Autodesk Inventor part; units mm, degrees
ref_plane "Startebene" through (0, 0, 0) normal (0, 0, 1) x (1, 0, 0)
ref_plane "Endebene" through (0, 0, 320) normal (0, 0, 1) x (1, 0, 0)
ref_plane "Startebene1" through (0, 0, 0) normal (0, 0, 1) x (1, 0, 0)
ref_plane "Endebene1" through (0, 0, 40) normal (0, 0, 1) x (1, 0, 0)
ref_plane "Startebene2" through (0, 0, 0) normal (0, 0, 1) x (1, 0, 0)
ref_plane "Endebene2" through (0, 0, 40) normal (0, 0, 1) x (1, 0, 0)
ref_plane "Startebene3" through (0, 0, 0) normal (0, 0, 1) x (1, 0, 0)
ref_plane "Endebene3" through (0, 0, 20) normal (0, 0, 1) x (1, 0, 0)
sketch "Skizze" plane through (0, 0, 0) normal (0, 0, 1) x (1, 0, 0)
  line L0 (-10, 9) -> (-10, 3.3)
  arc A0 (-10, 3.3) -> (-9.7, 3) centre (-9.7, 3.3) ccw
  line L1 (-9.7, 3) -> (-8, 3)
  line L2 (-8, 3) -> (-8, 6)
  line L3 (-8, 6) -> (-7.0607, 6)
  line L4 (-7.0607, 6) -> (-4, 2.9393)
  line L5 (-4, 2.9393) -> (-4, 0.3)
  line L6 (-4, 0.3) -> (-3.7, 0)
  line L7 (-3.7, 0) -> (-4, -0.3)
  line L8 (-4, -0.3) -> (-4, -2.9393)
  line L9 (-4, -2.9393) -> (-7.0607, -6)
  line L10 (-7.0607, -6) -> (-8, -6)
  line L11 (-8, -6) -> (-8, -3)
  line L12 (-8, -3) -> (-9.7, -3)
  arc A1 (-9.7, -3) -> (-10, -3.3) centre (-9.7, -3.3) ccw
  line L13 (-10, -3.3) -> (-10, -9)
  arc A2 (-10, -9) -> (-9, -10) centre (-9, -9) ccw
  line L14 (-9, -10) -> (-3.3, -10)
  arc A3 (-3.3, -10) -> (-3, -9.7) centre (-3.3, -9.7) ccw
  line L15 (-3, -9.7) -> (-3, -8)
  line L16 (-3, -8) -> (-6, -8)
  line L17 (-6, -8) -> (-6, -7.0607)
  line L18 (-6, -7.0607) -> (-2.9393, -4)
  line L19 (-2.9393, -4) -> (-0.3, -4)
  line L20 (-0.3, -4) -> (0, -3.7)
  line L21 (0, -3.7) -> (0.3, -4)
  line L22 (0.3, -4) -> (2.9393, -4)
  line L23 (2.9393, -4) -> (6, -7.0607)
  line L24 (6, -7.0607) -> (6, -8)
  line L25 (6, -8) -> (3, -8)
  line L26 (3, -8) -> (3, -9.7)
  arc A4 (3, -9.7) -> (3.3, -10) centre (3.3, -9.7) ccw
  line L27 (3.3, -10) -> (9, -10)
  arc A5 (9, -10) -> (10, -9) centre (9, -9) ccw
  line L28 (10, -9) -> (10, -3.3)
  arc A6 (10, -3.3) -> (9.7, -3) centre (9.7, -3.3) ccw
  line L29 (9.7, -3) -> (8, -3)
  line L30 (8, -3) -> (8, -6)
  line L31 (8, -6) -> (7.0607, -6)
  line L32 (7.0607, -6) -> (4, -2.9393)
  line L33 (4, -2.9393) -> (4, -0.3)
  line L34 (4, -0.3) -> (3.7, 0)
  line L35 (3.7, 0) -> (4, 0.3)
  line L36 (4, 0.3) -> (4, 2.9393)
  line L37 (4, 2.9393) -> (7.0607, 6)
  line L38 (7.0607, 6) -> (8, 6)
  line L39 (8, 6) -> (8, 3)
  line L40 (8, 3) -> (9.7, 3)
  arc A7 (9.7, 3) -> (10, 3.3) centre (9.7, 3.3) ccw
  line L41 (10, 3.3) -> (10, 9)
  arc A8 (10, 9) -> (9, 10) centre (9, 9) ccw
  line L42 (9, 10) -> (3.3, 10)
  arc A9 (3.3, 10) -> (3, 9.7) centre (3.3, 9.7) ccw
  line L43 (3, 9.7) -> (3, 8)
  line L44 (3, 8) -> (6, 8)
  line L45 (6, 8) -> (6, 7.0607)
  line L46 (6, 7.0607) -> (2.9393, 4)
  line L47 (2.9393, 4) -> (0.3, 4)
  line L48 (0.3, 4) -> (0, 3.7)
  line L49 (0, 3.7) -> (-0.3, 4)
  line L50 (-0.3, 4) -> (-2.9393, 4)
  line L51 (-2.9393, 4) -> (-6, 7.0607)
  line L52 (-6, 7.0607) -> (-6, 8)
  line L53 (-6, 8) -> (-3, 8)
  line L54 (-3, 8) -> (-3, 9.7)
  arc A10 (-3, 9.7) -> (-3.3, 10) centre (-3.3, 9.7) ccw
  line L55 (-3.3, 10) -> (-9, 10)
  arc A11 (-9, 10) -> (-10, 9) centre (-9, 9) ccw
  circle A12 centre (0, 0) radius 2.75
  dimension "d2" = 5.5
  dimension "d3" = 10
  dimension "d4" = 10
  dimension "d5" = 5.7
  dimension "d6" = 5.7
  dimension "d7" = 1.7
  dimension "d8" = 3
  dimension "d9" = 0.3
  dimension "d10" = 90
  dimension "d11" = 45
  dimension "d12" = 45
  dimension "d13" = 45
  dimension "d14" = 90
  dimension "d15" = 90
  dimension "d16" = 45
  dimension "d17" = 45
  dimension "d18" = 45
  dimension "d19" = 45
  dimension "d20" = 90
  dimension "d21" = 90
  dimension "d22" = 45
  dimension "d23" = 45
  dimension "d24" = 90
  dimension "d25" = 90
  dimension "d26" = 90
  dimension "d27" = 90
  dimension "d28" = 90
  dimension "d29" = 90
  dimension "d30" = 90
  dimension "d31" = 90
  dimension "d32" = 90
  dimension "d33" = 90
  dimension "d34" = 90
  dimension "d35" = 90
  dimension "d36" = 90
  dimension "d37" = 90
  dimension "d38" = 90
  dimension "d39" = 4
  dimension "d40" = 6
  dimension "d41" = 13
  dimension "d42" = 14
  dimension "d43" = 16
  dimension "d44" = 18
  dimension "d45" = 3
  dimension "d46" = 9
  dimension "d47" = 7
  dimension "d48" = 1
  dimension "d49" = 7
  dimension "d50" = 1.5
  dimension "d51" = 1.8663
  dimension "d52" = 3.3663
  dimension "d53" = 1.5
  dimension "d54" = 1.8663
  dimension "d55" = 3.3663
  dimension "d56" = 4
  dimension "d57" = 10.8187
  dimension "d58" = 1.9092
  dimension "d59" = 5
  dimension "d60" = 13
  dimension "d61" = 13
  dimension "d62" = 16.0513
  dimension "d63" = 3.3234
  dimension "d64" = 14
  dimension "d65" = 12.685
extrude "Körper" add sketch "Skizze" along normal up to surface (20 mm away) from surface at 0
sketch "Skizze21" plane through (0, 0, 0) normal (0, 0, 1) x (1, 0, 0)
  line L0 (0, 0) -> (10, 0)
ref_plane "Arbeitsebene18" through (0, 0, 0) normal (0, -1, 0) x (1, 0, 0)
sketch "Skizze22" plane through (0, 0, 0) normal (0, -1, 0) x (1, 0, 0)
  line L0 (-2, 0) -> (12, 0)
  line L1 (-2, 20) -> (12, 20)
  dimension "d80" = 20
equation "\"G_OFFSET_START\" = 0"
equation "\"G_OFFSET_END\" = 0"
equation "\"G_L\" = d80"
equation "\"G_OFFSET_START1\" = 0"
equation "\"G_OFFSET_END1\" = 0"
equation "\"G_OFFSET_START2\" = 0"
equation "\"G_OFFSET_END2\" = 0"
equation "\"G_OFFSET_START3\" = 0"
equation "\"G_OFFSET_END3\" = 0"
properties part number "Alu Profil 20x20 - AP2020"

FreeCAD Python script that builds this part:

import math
import FreeCAD as App
import Part
import Sketcher

V = App.Vector

doc = App.newDocument("Part")
body = doc.addObject("PartDesign::Body", "Body")

sketch1 = body.newObject("Sketcher::SketchObject", "Sketch")
sketch1.AttachmentSupport = (doc.getObject("XY_Plane"), [""])
sketch1.MapMode = "FlatFace"
sketch1.addGeometry([
    Part.ArcOfCircle(Part.Circle(V(-9, 9, 0), V(0, 0, 1), 1), math.radians(90), math.radians(180)),
    Part.LineSegment(V(-10, 9, 0), V(-10, 3.3, 0)),
    Part.ArcOfCircle(Part.Circle(V(-9.7, 3.3, 0), V(0, 0, 1), 0.3), math.radians(180), math.radians(270)),
    Part.LineSegment(V(-9.7, 3, 0), V(-8, 3, 0)),
    Part.LineSegment(V(-8, 3, 0), V(-8, 6, 0)),
    Part.LineSegment(V(-8, 6, 0), V(-7.06, 6, 0)),
    Part.LineSegment(V(-7.06, 6, 0), V(-4, 2.94, 0)),
    Part.LineSegment(V(-4, 2.94, 0), V(-4, 0.3, 0)),
    Part.LineSegment(V(-4, 0.3, 0), V(-3.7, 0, 0)),
    Part.LineSegment(V(-3.7, 0, 0), V(-4, -0.3, 0)),
    Part.LineSegment(V(-4, -0.3, 0), V(-4, -2.94, 0)),
    Part.LineSegment(V(-4, -2.94, 0), V(-7.06, -6, 0)),
    Part.LineSegment(V(-7.06, -6, 0), V(-8, -6, 0)),
    Part.LineSegment(V(-8, -6, 0), V(-8, -3, 0)),
    Part.LineSegment(V(-8, -3, 0), V(-9.7, -3, 0)),
    Part.ArcOfCircle(Part.Circle(V(-9.7, -3.3, 0), V(0, 0, 1), 0.3), math.radians(90), math.radians(180)),
    Part.LineSegment(V(-10, -3.3, 0), V(-10, -9, 0)),
    Part.ArcOfCircle(Part.Circle(V(-9, -9, 0), V(0, 0, 1), 1), math.radians(180), math.radians(270)),
    Part.LineSegment(V(-9, -10, 0), V(-3.3, -10, 0)),
    Part.ArcOfCircle(Part.Circle(V(-3.3, -9.7, 0), V(0, 0, 1), 0.3), math.radians(-90), math.radians(0)),
    Part.LineSegment(V(-3, -9.7, 0), V(-3, -8, 0)),
    Part.LineSegment(V(-3, -8, 0), V(-6, -8, 0)),
    Part.LineSegment(V(-6, -8, 0), V(-6, -7.06, 0)),
    Part.LineSegment(V(-6, -7.06, 0), V(-2.94, -4, 0)),
    Part.LineSegment(V(-2.94, -4, 0), V(-0.3, -4, 0)),
    Part.LineSegment(V(-0.3, -4, 0), V(0, -3.7, 0)),
    Part.LineSegment(V(0, -3.7, 0), V(0.3, -4, 0)),
    Part.LineSegment(V(0.3, -4, 0), V(2.94, -4, 0)),
    Part.LineSegment(V(2.94, -4, 0), V(6, -7.06, 0)),
    Part.LineSegment(V(6, -7.06, 0), V(6, -8, 0)),
    Part.LineSegment(V(6, -8, 0), V(3, -8, 0)),
    Part.LineSegment(V(3, -8, 0), V(3, -9.7, 0)),
    Part.ArcOfCircle(Part.Circle(V(3.3, -9.7, 0), V(0, 0, 1), 0.3), math.radians(180), math.radians(270)),
    Part.LineSegment(V(3.3, -10, 0), V(9, -10, 0)),
    Part.ArcOfCircle(Part.Circle(V(9, -9, 0), V(0, 0, 1), 1), math.radians(-90), math.radians(0)),
    Part.LineSegment(V(10, -9, 0), V(10, -3.3, 0)),
    Part.ArcOfCircle(Part.Circle(V(9.7, -3.3, 0), V(0, 0, 1), 0.3), math.radians(0), math.radians(90)),
    Part.LineSegment(V(9.7, -3, 0), V(8, -3, 0)),
    Part.LineSegment(V(8, -3, 0), V(8, -6, 0)),
    Part.LineSegment(V(8, -6, 0), V(7.06, -6, 0)),
    Part.LineSegment(V(7.06, -6, 0), V(4, -2.94, 0)),
    Part.LineSegment(V(4, -2.94, 0), V(4, -0.3, 0)),
    Part.LineSegment(V(4, -0.3, 0), V(3.7, 0, 0)),
    Part.LineSegment(V(3.7, 0, 0), V(4, 0.3, 0)),
    Part.LineSegment(V(4, 0.3, 0), V(4, 2.94, 0)),
    Part.LineSegment(V(4, 2.94, 0), V(7.06, 6, 0)),
    Part.LineSegment(V(7.06, 6, 0), V(8, 6, 0)),
    Part.LineSegment(V(8, 6, 0), V(8, 3, 0)),
    Part.LineSegment(V(8, 3, 0), V(9.7, 3, 0)),
    Part.ArcOfCircle(Part.Circle(V(9.7, 3.3, 0), V(0, 0, 1), 0.3), math.radians(-90), math.radians(0)),
    Part.LineSegment(V(10, 3.3, 0), V(10, 9, 0)),
    Part.ArcOfCircle(Part.Circle(V(9, 9, 0), V(0, 0, 1), 1), math.radians(0), math.radians(90)),
    Part.LineSegment(V(9, 10, 0), V(3.3, 10, 0)),
    Part.ArcOfCircle(Part.Circle(V(3.3, 9.7, 0), V(0, 0, 1), 0.3), math.radians(90), math.radians(180)),
    Part.LineSegment(V(3, 9.7, 0), V(3, 8, 0)),
    Part.LineSegment(V(3, 8, 0), V(6, 8, 0)),
    Part.LineSegment(V(6, 8, 0), V(6, 7.06, 0)),
    Part.LineSegment(V(6, 7.06, 0), V(2.94, 4, 0)),
    Part.LineSegment(V(2.94, 4, 0), V(0.3, 4, 0)),
    Part.LineSegment(V(0.3, 4, 0), V(0, 3.7, 0)),
    Part.LineSegment(V(0, 3.7, 0), V(-0.3, 4, 0)),
    Part.LineSegment(V(-0.3, 4, 0), V(-2.94, 4, 0)),
    Part.LineSegment(V(-2.94, 4, 0), V(-6, 7.06, 0)),
    Part.LineSegment(V(-6, 7.06, 0), V(-6, 8, 0)),
    Part.LineSegment(V(-6, 8, 0), V(-3, 8, 0)),
    Part.LineSegment(V(-3, 8, 0), V(-3, 9.7, 0)),
    Part.ArcOfCircle(Part.Circle(V(-3.3, 9.7, 0), V(0, 0, 1), 0.3), math.radians(0), math.radians(90)),
    Part.LineSegment(V(-3.3, 10, 0), V(-9, 10, 0)),
    Part.Circle(V(0, 0, 0), V(0, 0, 1), 2.75),
], False)
sketch1.addConstraint([
    Sketcher.Constraint("Tangent", 0, 2, 1, 1),
    Sketcher.Constraint("Tangent", 1, 2, 2, 1),
    Sketcher.Constraint("Tangent", 2, 2, 3, 1),
    Sketcher.Constraint("Coincident", 3, 2, 4, 1),
    Sketcher.Constraint("Coincident", 4, 2, 5, 1),
    Sketcher.Constraint("Coincident", 5, 2, 6, 1),
    Sketcher.Constraint("Coincident", 6, 2, 7, 1),
    Sketcher.Constraint("Coincident", 7, 2, 8, 1),
    Sketcher.Constraint("Coincident", 8, 2, 9, 1),
    Sketcher.Constraint("Coincident", 9, 2, 10, 1),
    Sketcher.Constraint("Coincident", 10, 2, 11, 1),
    Sketcher.Constraint("Coincident", 11, 2, 12, 1),
    Sketcher.Constraint("Coincident", 12, 2, 13, 1),
    Sketcher.Constraint("Coincident", 13, 2, 14, 1),
    Sketcher.Constraint("Tangent", 14, 2, 15, 1),
    Sketcher.Constraint("Tangent", 15, 2, 16, 1),
    Sketcher.Constraint("Tangent", 16, 2, 17, 1),
    Sketcher.Constraint("Tangent", 17, 2, 18, 1),
    Sketcher.Constraint("Tangent", 18, 2, 19, 1),
    Sketcher.Constraint("Tangent", 19, 2, 20, 1),
    Sketcher.Constraint("Coincident", 20, 2, 21, 1),
    Sketcher.Constraint("Coincident", 21, 2, 22, 1),
    Sketcher.Constraint("Coincident", 22, 2, 23, 1),
    Sketcher.Constraint("Coincident", 23, 2, 24, 1),
    Sketcher.Constraint("Coincident", 24, 2, 25, 1),
    Sketcher.Constraint("Coincident", 25, 2, 26, 1),
    Sketcher.Constraint("Coincident", 26, 2, 27, 1),
    Sketcher.Constraint("Coincident", 27, 2, 28, 1),
    Sketcher.Constraint("Coincident", 28, 2, 29, 1),
    Sketcher.Constraint("Coincident", 29, 2, 30, 1),
    Sketcher.Constraint("Coincident", 30, 2, 31, 1),
    Sketcher.Constraint("Tangent", 31, 2, 32, 1),
    Sketcher.Constraint("Tangent", 32, 2, 33, 1),
    Sketcher.Constraint("Tangent", 33, 2, 34, 1),
    Sketcher.Constraint("Tangent", 34, 2, 35, 1),
    Sketcher.Constraint("Tangent", 35, 2, 36, 1),
    Sketcher.Constraint("Tangent", 36, 2, 37, 1),
    Sketcher.Constraint("Coincident", 37, 2, 38, 1),
    Sketcher.Constraint("Coincident", 38, 2, 39, 1),
    Sketcher.Constraint("Coincident", 39, 2, 40, 1),
    Sketcher.Constraint("Coincident", 40, 2, 41, 1),
    Sketcher.Constraint("Coincident", 41, 2, 42, 1),
    Sketcher.Constraint("Coincident", 42, 2, 43, 1),
    Sketcher.Constraint("Coincident", 43, 2, 44, 1),
    Sketcher.Constraint("Coincident", 44, 2, 45, 1),
    Sketcher.Constraint("Coincident", 45, 2, 46, 1),
    Sketcher.Constraint("Coincident", 46, 2, 47, 1),
    Sketcher.Constraint("Coincident", 47, 2, 48, 1),
    Sketcher.Constraint("Tangent", 48, 2, 49, 1),
    Sketcher.Constraint("Tangent", 49, 2, 50, 1),
    Sketcher.Constraint("Tangent", 50, 2, 51, 1),
    Sketcher.Constraint("Tangent", 51, 2, 52, 1),
    Sketcher.Constraint("Tangent", 52, 2, 53, 1),
    Sketcher.Constraint("Tangent", 53, 2, 54, 1),
    Sketcher.Constraint("Coincident", 54, 2, 55, 1),
    Sketcher.Constraint("Coincident", 55, 2, 56, 1),
    Sketcher.Constraint("Coincident", 56, 2, 57, 1),
    Sketcher.Constraint("Coincident", 57, 2, 58, 1),
    Sketcher.Constraint("Coincident", 58, 2, 59, 1),
    Sketcher.Constraint("Coincident", 59, 2, 60, 1),
    Sketcher.Constraint("Coincident", 60, 2, 61, 1),
    Sketcher.Constraint("Coincident", 61, 2, 62, 1),
    Sketcher.Constraint("Coincident", 62, 2, 63, 1),
    Sketcher.Constraint("Coincident", 63, 2, 64, 1),
    Sketcher.Constraint("Coincident", 64, 2, 65, 1),
    Sketcher.Constraint("Tangent", 65, 2, 66, 1),
    Sketcher.Constraint("Tangent", 66, 2, 67, 1),
    Sketcher.Constraint("Tangent", 67, 2, 0, 1),
    Sketcher.Constraint("Vertical", 1),
    Sketcher.Constraint("Horizontal", 3),
    Sketcher.Constraint("Vertical", 4),
    Sketcher.Constraint("Horizontal", 5),
    Sketcher.Constraint("Vertical", 7),
    Sketcher.Constraint("Vertical", 10),
    Sketcher.Constraint("Horizontal", 12),
    Sketcher.Constraint("Vertical", 13),
    Sketcher.Constraint("Horizontal", 14),
    Sketcher.Constraint("Vertical", 16),
    Sketcher.Constraint("Horizontal", 18),
    Sketcher.Constraint("Vertical", 20),
    Sketcher.Constraint("Horizontal", 21),
    Sketcher.Constraint("Vertical", 22),
    Sketcher.Constraint("Horizontal", 24),
    Sketcher.Constraint("Horizontal", 27),
    Sketcher.Constraint("Vertical", 29),
    Sketcher.Constraint("Horizontal", 30),
    Sketcher.Constraint("Vertical", 31),
    Sketcher.Constraint("Horizontal", 33),
    Sketcher.Constraint("Vertical", 35),
    Sketcher.Constraint("Horizontal", 37),
    Sketcher.Constraint("Vertical", 38),
    Sketcher.Constraint("Horizontal", 39),
    Sketcher.Constraint("Vertical", 41),
    Sketcher.Constraint("Vertical", 44),
    Sketcher.Constraint("Horizontal", 46),
    Sketcher.Constraint("Vertical", 47),
    Sketcher.Constraint("Horizontal", 48),
    Sketcher.Constraint("Vertical", 50),
    Sketcher.Constraint("Horizontal", 52),
    Sketcher.Constraint("Vertical", 54),
    Sketcher.Constraint("Horizontal", 55),
    Sketcher.Constraint("Vertical", 56),
    Sketcher.Constraint("Horizontal", 58),
    Sketcher.Constraint("Horizontal", 61),
    Sketcher.Constraint("Vertical", 63),
    Sketcher.Constraint("Horizontal", 64),
    Sketcher.Constraint("Vertical", 65),
    Sketcher.Constraint("Horizontal", 67),
    Sketcher.Constraint("Coincident", 68, 3, -1, 1),
    Sketcher.Constraint("Equal", 2, 15),
    Sketcher.Constraint("Equal", 0, 17),
    Sketcher.Constraint("Equal", 15, 19),
    Sketcher.Constraint("Equal", 19, 32),
    Sketcher.Constraint("Equal", 17, 34),
    Sketcher.Constraint("Equal", 32, 36),
    Sketcher.Constraint("Equal", 36, 49),
    Sketcher.Constraint("Equal", 34, 51),
    Sketcher.Constraint("Equal", 49, 53),
    Sketcher.Constraint("Equal", 53, 66),
    Sketcher.Constraint("Symmetric", 0, 3, 34, 3, -1, 1),
    Sketcher.Constraint("Symmetric", 15, 3, 49, 3, -1, 1),
    Sketcher.Constraint("Symmetric", 19, 3, 53, 3, -1, 1),
    Sketcher.Constraint("Symmetric", 3, 2, 37, 2, -1, 1),
    Sketcher.Constraint("Symmetric", 5, 2, 39, 2, -1, 1),
    Sketcher.Constraint("Symmetric", 6, 2, 40, 2, -1, 1),
    Sketcher.Constraint("Symmetric", 8, 2, 42, 2, -1, 1),
    Sketcher.Constraint("Symmetric", 9, 2, 43, 2, -1, 1),
    Sketcher.Constraint("Symmetric", 11, 2, 45, 2, -1, 1),
    Sketcher.Constraint("Symmetric", 21, 2, 55, 2, -1, 1),
    Sketcher.Constraint("Symmetric", 23, 2, 57, 2, -1, 1),
    Sketcher.Constraint("Symmetric", 25, 2, 59, 2, -1, 1),
    Sketcher.Constraint("Symmetric", 26, 2, 60, 2, -1, 1),
    Sketcher.Constraint("Symmetric", 28, 2, 62, 2, -1, 1),
    Sketcher.Constraint("Symmetric", 30, 2, 64, 2, -1, 1),
    Sketcher.Constraint("Symmetric", 19, 3, 32, 3, -2),
    Sketcher.Constraint("Symmetric", 15, 3, 36, 3, -2),
    Sketcher.Constraint("Symmetric", 24, 2, 26, 2, -2),
    Sketcher.Constraint("Symmetric", 22, 2, 28, 2, -2),
    Sketcher.Constraint("Symmetric", 12, 2, 38, 2, -2),
    Sketcher.Constraint("Symmetric", 10, 2, 40, 2, -2),
    Sketcher.Constraint("PointOnObject", 8, 2, -1),
    Sketcher.Constraint("PointOnObject", 25, 2, -2),
    Sketcher.Constraint("Parallel", 6, 8),
    Sketcher.Constraint("Perpendicular", 8, 9),
    Sketcher.Constraint("Parallel", 9, 11),
    Sketcher.Constraint("Parallel", 11, 23),
    Sketcher.Constraint("Parallel", 23, 25),
    Sketcher.Constraint("Perpendicular", 25, 26),
    Sketcher.Constraint("Parallel", 26, 28),
    Sketcher.Constraint("Parallel", 40, 42),
    Sketcher.Constraint("Parallel", 43, 45),
    Sketcher.Constraint("Parallel", 45, 57),
    Sketcher.Constraint("Parallel", 57, 59),
    Sketcher.Constraint("Parallel", 60, 62),
    Sketcher.Constraint("Horizontal", 21, 2, 29, 2),
    Sketcher.Constraint("Vertical", 38, 2, 46, 2),
    Sketcher.Constraint("Equal", 67, 1),
    Sketcher.Constraint("Equal", 64, 4),
    Sketcher.Constraint("Equal", 61, 7),
    Sketcher.Constraint("Equal", 48, 20),
    Sketcher.Constraint("Equal", 46, 22),
    Sketcher.Constraint("Equal", 11, 23),
    Sketcher.Constraint("Equal", 9, 25),
    Sketcher.Constraint("Radius", 0, 1.0),
    Sketcher.Constraint("Diameter", 68, 5.5),
    Sketcher.Constraint("Radius", 2, 0.3),
    Sketcher.Constraint("DistanceX", 21, 2, 21, 1, 3.0),
    Sketcher.Constraint("DistanceX", 3, 1, 3, 2, 1.7),
    Sketcher.Constraint("DistanceX", 18, 1, 18, 2, 5.7),
    Sketcher.Constraint("DistanceX", 0, 3, -1, 1, 9.0),
    Sketcher.Constraint("DistanceX", 6, 2, -1, 1, 4.0),
    Sketcher.Constraint("DistanceY", -1, 1, 7, 2, 0.3),
    Sketcher.Constraint("DistanceX", 5, 1, 5, 2, 0.9393),
])
pad1 = body.newObject("PartDesign::Pad", "Pad")
pad1.Profile = sketch1
pad1.Length = 20

doc.recompute()
